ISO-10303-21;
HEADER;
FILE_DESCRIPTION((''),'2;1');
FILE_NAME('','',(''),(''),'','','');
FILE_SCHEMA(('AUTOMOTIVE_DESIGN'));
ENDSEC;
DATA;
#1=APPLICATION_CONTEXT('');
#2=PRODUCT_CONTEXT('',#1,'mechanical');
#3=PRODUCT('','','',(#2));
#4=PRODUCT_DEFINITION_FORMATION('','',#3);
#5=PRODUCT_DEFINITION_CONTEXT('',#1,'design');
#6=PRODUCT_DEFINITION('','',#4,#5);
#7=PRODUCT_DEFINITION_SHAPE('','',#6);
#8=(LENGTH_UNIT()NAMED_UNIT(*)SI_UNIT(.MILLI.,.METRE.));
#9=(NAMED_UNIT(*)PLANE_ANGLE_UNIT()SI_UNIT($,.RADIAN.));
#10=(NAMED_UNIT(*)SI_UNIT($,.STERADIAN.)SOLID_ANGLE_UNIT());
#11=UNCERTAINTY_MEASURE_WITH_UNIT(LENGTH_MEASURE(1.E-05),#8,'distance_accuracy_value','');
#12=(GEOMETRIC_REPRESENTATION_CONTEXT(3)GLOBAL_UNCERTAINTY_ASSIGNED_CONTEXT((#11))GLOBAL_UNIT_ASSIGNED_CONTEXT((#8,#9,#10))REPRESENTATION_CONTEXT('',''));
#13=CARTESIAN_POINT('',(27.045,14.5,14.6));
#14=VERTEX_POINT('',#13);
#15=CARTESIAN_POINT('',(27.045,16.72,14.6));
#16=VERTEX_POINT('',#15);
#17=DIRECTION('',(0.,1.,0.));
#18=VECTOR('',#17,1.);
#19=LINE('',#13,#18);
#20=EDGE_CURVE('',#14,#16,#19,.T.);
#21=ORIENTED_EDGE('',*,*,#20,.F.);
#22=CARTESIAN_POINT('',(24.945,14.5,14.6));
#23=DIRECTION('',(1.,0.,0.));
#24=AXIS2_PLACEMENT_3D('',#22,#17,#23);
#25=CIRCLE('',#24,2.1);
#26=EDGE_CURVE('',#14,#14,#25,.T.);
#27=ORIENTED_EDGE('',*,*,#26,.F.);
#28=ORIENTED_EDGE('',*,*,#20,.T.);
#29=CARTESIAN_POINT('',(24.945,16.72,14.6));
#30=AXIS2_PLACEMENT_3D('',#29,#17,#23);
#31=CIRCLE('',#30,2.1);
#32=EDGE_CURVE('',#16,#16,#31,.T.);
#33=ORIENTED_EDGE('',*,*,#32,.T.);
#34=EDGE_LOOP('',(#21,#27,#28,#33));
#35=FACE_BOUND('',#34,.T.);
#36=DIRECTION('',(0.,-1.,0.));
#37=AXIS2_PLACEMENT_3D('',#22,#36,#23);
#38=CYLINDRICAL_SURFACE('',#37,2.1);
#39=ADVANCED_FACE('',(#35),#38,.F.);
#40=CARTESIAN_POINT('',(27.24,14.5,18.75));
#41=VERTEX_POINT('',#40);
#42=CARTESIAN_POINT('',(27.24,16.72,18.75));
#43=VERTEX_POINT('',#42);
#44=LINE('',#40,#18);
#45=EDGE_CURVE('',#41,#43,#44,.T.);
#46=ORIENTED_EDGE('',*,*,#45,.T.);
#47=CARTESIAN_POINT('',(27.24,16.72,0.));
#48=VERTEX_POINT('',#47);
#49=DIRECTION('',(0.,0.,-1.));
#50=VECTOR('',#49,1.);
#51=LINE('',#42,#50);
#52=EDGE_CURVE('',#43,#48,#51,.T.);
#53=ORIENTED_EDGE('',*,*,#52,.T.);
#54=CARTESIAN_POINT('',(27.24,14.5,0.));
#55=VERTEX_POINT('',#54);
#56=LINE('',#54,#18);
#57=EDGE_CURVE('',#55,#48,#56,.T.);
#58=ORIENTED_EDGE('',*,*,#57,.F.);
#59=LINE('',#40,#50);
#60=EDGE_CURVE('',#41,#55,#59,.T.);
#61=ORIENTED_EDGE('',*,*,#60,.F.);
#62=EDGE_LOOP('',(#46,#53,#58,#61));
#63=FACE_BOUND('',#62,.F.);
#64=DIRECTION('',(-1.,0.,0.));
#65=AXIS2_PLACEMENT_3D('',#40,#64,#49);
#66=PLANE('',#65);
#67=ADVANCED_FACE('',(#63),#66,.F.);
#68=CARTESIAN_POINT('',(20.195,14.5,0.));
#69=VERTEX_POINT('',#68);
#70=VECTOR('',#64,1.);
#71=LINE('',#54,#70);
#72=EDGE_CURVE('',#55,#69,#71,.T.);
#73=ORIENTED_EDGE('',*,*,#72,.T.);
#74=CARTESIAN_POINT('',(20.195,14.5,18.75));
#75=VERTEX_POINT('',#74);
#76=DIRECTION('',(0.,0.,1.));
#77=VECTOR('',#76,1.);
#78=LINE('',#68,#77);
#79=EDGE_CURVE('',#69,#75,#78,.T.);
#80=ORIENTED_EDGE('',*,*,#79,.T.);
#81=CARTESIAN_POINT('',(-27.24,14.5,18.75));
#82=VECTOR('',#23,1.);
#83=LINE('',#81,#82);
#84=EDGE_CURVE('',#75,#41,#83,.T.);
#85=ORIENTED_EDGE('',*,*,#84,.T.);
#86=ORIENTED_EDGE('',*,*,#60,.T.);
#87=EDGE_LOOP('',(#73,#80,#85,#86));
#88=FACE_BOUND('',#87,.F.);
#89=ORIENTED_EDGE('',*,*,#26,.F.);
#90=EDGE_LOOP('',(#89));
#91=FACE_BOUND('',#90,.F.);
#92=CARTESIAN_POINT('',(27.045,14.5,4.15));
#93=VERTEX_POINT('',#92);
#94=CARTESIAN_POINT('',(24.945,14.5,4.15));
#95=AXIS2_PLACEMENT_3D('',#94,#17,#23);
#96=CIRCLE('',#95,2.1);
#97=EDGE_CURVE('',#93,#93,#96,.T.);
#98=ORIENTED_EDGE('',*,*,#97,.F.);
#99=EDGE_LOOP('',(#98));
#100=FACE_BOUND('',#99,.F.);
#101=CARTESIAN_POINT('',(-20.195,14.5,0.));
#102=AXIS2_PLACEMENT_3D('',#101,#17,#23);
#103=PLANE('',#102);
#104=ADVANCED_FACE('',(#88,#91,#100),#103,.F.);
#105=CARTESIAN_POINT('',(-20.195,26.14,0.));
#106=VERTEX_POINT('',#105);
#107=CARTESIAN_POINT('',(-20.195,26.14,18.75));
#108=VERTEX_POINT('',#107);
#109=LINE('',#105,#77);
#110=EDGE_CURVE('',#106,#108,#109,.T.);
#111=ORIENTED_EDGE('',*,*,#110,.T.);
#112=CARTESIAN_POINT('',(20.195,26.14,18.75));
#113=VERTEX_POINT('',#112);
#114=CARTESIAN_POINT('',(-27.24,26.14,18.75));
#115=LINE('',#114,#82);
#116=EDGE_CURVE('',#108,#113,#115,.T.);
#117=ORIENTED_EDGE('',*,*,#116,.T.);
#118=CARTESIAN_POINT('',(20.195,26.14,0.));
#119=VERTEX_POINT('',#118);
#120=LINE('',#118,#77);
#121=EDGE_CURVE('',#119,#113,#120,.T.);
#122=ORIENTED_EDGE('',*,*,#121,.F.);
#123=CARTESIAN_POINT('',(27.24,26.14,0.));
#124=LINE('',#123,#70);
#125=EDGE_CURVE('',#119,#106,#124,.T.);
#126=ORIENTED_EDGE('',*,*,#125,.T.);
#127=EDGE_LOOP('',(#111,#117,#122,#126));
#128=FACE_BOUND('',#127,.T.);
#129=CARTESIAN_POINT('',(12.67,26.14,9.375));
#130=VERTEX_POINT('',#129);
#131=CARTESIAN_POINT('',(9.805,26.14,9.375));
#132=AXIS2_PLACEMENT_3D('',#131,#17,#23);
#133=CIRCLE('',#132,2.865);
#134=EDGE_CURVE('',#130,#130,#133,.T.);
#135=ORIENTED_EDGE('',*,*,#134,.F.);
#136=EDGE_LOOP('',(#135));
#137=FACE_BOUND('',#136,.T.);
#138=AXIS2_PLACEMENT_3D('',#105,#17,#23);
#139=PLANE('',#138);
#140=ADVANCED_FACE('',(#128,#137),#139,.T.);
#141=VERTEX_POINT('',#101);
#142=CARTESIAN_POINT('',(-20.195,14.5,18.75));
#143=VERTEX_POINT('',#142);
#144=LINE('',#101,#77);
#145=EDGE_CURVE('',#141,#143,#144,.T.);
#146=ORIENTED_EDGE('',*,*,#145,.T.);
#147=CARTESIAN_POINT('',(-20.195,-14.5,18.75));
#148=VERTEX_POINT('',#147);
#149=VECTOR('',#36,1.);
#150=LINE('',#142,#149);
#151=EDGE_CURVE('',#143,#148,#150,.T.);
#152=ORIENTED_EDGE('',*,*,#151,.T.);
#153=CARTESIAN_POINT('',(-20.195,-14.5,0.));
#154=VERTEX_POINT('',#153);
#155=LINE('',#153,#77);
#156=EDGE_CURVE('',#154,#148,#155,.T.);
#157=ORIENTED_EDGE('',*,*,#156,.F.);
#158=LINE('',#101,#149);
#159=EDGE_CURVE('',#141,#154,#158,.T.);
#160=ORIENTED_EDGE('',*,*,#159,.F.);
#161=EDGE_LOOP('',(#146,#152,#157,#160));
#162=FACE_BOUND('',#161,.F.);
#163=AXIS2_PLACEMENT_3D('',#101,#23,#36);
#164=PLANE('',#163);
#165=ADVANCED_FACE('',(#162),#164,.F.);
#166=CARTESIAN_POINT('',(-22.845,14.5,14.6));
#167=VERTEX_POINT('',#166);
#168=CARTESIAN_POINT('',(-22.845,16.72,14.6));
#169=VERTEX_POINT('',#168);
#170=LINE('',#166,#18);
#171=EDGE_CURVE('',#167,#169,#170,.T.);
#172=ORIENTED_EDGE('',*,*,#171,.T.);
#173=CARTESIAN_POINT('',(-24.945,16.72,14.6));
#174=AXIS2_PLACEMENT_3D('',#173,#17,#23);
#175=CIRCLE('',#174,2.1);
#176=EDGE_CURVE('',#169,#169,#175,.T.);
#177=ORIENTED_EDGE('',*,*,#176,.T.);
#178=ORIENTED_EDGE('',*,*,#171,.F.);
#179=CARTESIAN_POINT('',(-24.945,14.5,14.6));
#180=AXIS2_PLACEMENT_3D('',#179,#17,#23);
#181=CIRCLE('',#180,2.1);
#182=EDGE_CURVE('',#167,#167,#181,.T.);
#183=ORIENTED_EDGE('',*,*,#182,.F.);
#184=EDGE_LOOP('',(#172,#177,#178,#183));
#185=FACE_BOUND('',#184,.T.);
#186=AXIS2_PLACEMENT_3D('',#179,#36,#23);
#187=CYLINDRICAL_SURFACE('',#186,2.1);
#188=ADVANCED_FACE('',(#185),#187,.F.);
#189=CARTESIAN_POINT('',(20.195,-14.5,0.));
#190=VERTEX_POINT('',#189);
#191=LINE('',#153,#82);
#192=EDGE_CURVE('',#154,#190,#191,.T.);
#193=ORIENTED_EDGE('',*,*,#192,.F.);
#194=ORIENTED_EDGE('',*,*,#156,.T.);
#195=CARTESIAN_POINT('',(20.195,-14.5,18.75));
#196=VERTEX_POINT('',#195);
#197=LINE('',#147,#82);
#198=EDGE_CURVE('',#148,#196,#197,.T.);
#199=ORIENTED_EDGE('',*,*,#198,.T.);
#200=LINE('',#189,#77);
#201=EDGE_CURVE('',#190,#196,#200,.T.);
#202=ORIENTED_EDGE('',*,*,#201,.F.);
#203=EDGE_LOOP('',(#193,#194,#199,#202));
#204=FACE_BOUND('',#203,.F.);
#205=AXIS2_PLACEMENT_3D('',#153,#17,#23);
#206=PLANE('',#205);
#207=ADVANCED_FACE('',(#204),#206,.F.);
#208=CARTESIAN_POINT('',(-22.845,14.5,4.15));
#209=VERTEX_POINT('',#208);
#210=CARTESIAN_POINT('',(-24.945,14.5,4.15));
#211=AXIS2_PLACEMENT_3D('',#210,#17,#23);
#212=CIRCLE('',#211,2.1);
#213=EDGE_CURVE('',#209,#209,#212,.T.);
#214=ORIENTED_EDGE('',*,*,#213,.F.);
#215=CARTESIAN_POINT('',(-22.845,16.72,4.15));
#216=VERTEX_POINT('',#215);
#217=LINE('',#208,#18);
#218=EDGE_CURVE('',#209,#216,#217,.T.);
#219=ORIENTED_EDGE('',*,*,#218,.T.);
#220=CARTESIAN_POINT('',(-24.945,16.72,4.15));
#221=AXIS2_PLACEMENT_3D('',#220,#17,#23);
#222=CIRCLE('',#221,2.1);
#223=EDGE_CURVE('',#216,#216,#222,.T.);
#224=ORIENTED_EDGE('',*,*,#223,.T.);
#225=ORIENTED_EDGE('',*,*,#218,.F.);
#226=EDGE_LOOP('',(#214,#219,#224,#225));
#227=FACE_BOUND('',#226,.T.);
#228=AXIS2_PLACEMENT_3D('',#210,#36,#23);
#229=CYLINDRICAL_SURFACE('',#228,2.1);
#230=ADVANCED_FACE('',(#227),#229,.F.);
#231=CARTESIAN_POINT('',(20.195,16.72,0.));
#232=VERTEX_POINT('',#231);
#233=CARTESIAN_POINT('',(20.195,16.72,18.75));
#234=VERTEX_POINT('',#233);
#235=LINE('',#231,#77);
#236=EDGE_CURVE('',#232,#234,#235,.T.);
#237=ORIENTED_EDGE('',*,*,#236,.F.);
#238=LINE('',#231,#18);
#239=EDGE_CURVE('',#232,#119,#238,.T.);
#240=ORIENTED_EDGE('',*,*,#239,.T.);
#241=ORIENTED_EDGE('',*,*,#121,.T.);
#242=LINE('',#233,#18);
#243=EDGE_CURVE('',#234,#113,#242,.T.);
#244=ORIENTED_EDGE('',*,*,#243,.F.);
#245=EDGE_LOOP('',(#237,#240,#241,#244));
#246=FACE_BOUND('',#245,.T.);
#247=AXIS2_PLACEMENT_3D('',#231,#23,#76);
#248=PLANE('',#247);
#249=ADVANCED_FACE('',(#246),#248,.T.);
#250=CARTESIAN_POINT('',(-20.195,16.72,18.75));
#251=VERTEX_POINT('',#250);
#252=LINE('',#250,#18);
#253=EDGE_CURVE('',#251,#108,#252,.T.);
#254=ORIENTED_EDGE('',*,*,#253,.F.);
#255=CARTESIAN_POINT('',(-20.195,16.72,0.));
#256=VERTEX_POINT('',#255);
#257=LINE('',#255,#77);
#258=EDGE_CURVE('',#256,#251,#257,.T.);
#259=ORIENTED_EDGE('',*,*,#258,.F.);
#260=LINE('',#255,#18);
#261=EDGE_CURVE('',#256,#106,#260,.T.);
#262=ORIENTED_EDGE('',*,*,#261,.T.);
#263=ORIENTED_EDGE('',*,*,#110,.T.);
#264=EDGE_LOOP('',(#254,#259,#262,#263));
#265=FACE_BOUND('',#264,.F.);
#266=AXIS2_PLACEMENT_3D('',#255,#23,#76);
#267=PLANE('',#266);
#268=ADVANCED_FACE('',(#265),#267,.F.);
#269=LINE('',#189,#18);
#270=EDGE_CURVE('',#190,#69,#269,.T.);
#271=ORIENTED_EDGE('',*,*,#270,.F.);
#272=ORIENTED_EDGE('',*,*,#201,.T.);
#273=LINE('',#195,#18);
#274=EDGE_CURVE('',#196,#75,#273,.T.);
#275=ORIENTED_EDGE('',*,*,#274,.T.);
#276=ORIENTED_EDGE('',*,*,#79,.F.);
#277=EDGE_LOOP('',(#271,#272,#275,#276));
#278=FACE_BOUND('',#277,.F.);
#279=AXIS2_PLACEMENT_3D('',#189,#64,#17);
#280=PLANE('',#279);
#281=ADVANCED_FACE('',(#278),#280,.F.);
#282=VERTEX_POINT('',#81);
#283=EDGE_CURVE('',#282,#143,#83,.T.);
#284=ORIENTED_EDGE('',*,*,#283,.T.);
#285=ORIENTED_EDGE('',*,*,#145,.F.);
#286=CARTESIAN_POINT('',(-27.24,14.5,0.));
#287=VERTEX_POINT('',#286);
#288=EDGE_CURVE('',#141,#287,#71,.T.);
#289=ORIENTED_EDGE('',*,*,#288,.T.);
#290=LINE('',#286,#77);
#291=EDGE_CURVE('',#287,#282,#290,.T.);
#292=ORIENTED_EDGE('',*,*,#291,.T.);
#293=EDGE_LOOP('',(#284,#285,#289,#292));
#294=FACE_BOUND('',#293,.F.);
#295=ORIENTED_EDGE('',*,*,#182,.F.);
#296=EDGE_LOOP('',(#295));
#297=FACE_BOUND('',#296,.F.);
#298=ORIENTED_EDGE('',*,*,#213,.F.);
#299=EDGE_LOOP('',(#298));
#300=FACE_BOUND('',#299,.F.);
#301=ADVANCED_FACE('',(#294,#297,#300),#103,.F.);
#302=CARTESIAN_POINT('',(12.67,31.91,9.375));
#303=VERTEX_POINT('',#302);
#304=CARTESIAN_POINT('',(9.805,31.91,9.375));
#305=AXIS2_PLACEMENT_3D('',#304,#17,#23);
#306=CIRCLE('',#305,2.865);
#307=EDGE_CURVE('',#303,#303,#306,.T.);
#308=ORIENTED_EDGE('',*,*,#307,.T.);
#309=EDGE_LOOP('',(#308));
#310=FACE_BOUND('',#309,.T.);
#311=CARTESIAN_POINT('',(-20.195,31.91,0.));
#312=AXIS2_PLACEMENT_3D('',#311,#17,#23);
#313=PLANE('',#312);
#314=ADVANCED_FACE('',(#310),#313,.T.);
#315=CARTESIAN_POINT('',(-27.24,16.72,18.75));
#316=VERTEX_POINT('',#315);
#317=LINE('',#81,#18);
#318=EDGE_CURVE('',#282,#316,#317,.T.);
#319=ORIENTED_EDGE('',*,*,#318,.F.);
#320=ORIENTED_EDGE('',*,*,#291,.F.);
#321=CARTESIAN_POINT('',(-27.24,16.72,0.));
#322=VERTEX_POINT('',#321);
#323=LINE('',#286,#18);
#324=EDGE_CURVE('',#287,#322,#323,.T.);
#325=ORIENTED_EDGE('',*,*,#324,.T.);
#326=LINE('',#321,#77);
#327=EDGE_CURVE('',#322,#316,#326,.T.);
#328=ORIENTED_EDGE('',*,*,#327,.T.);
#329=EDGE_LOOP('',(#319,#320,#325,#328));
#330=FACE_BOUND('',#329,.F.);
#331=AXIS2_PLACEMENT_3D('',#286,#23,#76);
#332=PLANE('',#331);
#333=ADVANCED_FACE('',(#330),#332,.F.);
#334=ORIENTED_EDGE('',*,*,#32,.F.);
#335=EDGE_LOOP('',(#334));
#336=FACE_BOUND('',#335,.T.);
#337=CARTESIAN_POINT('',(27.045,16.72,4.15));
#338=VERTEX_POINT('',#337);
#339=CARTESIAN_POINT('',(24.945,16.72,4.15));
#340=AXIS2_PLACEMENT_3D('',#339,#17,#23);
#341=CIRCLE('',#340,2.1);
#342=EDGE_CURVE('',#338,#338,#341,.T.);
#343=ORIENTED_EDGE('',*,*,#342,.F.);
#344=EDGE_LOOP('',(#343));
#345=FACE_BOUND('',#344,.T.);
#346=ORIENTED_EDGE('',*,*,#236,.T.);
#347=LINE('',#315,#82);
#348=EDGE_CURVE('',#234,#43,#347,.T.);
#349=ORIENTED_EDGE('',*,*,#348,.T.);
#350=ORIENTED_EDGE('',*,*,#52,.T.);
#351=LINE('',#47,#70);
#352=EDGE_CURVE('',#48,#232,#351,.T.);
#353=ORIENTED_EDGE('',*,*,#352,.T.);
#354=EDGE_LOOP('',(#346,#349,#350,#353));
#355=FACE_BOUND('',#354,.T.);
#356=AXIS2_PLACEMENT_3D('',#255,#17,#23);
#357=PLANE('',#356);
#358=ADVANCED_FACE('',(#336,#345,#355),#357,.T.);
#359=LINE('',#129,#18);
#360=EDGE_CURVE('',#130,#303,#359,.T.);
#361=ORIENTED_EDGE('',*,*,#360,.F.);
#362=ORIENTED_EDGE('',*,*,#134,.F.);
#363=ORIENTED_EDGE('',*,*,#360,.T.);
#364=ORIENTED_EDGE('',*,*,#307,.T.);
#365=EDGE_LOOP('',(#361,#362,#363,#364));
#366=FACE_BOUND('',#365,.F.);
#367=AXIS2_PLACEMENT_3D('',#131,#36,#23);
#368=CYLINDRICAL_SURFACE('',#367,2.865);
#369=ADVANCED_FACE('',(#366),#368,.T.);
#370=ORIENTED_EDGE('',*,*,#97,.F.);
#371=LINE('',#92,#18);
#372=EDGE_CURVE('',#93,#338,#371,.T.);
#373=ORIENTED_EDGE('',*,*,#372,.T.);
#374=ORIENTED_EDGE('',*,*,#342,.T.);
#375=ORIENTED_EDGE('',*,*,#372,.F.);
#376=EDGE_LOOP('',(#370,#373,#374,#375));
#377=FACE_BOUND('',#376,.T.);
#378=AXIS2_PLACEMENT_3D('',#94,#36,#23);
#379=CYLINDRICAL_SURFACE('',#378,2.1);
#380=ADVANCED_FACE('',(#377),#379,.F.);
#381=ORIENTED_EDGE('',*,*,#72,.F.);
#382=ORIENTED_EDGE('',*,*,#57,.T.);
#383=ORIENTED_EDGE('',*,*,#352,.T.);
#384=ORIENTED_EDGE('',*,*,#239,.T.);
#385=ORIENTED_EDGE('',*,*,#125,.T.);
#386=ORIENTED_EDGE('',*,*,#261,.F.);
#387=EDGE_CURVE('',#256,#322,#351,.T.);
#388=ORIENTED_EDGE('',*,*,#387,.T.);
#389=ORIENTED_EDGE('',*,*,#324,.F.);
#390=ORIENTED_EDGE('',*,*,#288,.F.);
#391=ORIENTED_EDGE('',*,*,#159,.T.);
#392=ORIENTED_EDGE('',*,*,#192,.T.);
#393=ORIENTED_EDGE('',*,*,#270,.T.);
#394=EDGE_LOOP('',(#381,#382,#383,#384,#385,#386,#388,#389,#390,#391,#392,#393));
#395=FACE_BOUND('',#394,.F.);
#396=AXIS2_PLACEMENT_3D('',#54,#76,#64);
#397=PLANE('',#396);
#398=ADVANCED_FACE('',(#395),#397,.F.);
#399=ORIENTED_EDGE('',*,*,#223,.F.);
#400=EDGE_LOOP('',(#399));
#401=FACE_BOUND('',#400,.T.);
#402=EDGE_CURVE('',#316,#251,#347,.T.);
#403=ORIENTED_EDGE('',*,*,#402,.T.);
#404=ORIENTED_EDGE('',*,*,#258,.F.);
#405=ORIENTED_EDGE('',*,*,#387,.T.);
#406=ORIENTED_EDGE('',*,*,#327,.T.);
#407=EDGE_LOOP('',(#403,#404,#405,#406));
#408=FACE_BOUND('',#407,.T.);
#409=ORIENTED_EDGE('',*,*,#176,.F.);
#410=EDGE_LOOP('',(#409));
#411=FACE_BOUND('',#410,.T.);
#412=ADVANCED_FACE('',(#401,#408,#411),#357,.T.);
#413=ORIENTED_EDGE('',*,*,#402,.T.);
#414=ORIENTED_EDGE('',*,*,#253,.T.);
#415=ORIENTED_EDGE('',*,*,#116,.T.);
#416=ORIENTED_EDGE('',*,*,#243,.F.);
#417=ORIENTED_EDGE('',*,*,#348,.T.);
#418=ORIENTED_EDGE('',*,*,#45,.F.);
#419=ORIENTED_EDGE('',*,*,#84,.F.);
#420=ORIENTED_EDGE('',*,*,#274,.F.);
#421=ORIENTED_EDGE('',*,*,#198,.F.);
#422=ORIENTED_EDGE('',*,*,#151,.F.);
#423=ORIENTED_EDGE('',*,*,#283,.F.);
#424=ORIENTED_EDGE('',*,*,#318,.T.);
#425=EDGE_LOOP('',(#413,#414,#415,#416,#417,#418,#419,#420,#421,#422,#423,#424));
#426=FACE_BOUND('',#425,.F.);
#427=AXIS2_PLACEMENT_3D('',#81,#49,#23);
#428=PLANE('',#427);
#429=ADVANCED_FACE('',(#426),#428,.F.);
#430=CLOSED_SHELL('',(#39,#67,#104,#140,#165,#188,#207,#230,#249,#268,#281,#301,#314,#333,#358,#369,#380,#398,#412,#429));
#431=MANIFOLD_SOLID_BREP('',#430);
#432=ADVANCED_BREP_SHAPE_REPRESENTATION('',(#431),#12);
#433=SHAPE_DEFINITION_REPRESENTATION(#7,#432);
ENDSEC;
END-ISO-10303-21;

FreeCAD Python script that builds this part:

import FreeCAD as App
import Part
import Sketcher


def add_polygon(sketch, points):
    """Adds a closed chain of lines whose ends are joined by coincident constraints."""
    first, n = sketch.GeometryCount, len(points)
    for a, b in zip(points, points[1:] + points[:1]):
        sketch.addGeometry(Part.LineSegment(App.Vector(*a, 0), App.Vector(*b, 0)), False)
    for i in range(n):
        sketch.addConstraint(Sketcher.Constraint("Coincident", first + i, 2, first + (i + 1) % n, 1))

doc = App.newDocument("Part")
body = doc.addObject("PartDesign::Body", "Body")

sketch1 = body.newObject("Sketcher::SketchObject", "Sketch")
sketch1.AttachmentSupport = (doc.getObject("XY_Plane"), [""])
sketch1.MapMode = "FlatFace"
add_polygon(sketch1, [(-20, 14), (-20, -14), (20, -14), (20, 14)])
sketch1.addConstraint([
    Sketcher.Constraint("Vertical", 0),
    Sketcher.Constraint("Horizontal", 1),
    Sketcher.Constraint("Vertical", 2),
    Sketcher.Constraint("Horizontal", 3),
    Sketcher.Constraint("Symmetric", 0, 2, 2, 2, -1, 1),
    Sketcher.Constraint("DistanceY", 0, 2, 0, 1, 29.0),
    Sketcher.Constraint("DistanceX", 1, 1, 1, 2, 40.39),
])
pad1 = body.newObject("PartDesign::Pad", "Pad")
pad1.Profile = sketch1
pad1.Length = 18.75

sketch2 = body.newObject("Sketcher::SketchObject", "Sketch001")
sketch2.AttachmentSupport = (doc.getObject("XZ_Plane"), [""])
sketch2.MapMode = "FlatFace"
sketch2.AttachmentOffset = App.Placement(App.Vector(0, 0, -14.5), App.Rotation())
add_polygon(sketch2, [(-27.2, 0), (-27.2, 18.8), (27.2, 18.8), (27.2, 0)])
sketch2.addGeometry(Part.Circle(App.Vector(-24.9, 14.6, 0), App.Vector(0, 0, 1), 2.1), False)
sketch2.addGeometry(Part.Circle(App.Vector(24.9, 14.6, 0), App.Vector(0, 0, 1), 2.1), False)
sketch2.addGeometry(Part.Circle(App.Vector(-24.9, 4.2, 0), App.Vector(0, 0, 1), 2.1), False)
sketch2.addGeometry(Part.Circle(App.Vector(24.9, 4.2, 0), App.Vector(0, 0, 1), 2.1), False)
sketch2.addConstraint([
    Sketcher.Constraint("Vertical", 0),
    Sketcher.Constraint("Horizontal", 1),
    Sketcher.Constraint("Vertical", 2),
    Sketcher.Constraint("Horizontal", 3),
    Sketcher.Constraint("Equal", 4, 5),
    Sketcher.Constraint("Equal", 5, 6),
    Sketcher.Constraint("Equal", 6, 7),
    Sketcher.Constraint("Symmetric", 2, 2, 3, 2, -1, 1),
    Sketcher.Constraint("Symmetric", 4, 3, 5, 3, -2),
    Sketcher.Constraint("Symmetric", 6, 3, 7, 3, -2),
    Sketcher.Constraint("Vertical", 4, 3, 6, 3),
    Sketcher.Constraint("Diameter", 4, 4.2),
    Sketcher.Constraint("DistanceX", 1, 1, 1, 2, 54.48),
    Sketcher.Constraint("DistanceY", -1, 1, 6, 3, 4.15),
    Sketcher.Constraint("DistanceY", 4, 3, 0, 2, 4.15),
    Sketcher.Constraint("DistanceY", 0, 1, 0, 2, 18.75),
    Sketcher.Constraint("DistanceX", 4, 3, 5, 3, 49.89),
])
pad2 = body.newObject("PartDesign::Pad", "Pad001")
pad2.Profile = sketch2
pad2.Length = 2.22
pad2.Reversed = True

sketch3 = body.newObject("Sketcher::SketchObject", "Sketch002")
sketch3.AttachmentSupport = (doc.getObject("XZ_Plane"), [""])
sketch3.MapMode = "FlatFace"
sketch3.AttachmentOffset = App.Placement(App.Vector(0, 0, -16.72), App.Rotation())
add_polygon(sketch3, [(20, 0), (-20, 0), (-20, 19), (20, 19)])
sketch3.addConstraint([
    Sketcher.Constraint("Horizontal", 0),
    Sketcher.Constraint("Vertical", 1),
    Sketcher.Constraint("Horizontal", 2),
    Sketcher.Constraint("Vertical", 3),
    Sketcher.Constraint("Symmetric", 0, 2, 3, 2, -1, 1),
    Sketcher.Constraint("DistanceX", 0, 2, 0, 1, 40.39),
    Sketcher.Constraint("DistanceY", 1, 1, 1, 2, 18.75),
])
pad3 = body.newObject("PartDesign::Pad", "Pad002")
pad3.Profile = sketch3
pad3.Length = 9.42
pad3.Reversed = True

sketch4 = body.newObject("Sketcher::SketchObject", "Sketch003")
sketch4.AttachmentSupport = (doc.getObject("XZ_Plane"), [""])
sketch4.MapMode = "FlatFace"
sketch4.AttachmentOffset = App.Placement(App.Vector(0, 0, -26.14), App.Rotation())
sketch4.addGeometry(Part.Circle(App.Vector(9.8, 9.4, 0), App.Vector(0, 0, 1), 2.9), False)
sketch4.addConstraint([
    Sketcher.Constraint("Diameter", 0, 5.73),
    Sketcher.Constraint("DistanceX", -1, 1, 0, 3, 9.805),
    Sketcher.Constraint("DistanceY", -1, 1, 0, 3, 9.375),
])
pad4 = body.newObject("PartDesign::Pad", "Pad003")
pad4.Profile = sketch4
pad4.Length = 5.77
pad4.Reversed = True

doc.recompute()
